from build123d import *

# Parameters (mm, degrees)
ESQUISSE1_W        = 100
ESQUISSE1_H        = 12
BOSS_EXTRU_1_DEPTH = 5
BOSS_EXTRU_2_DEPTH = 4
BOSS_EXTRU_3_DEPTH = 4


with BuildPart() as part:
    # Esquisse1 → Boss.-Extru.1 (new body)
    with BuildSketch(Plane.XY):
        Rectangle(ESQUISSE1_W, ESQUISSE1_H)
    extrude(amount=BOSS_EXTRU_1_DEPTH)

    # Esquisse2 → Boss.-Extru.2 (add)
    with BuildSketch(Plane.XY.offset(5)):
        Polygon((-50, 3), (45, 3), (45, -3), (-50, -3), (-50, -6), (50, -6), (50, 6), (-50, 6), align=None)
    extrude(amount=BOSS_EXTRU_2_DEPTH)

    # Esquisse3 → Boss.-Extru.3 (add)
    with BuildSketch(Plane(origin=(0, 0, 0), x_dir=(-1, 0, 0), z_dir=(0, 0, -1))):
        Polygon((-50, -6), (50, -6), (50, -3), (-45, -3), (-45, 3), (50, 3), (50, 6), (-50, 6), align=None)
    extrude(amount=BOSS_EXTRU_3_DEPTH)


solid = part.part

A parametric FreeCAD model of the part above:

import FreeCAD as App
import Part
import Sketcher

V = App.Vector


def add_polygon(sketch, points):
    """Adds a closed chain of lines whose ends are joined by coincident constraints."""
    first, n = sketch.GeometryCount, len(points)
    for a, b in zip(points, points[1:] + points[:1]):
        sketch.addGeometry(Part.LineSegment(App.Vector(*a, 0), App.Vector(*b, 0)), False)
    for i in range(n):
        sketch.addConstraint(Sketcher.Constraint("Coincident", first + i, 2, first + (i + 1) % n, 1))

doc = App.newDocument("Part")
body = doc.addObject("PartDesign::Body", "Body")

# Sketch on XY plane
sketch1 = body.newObject("Sketcher::SketchObject", "Sketch")
sketch1.AttachmentSupport = (doc.getObject("XY_Plane"), [""])
sketch1.MapMode = "FlatFace"
add_polygon(sketch1, [(-50, 6), (-50, -6), (50, -6), (50, 6)])  # lines 0-3
sketch1.addConstraint(Sketcher.Constraint("Vertical", 0))
sketch1.addConstraint(Sketcher.Constraint("Horizontal", 1))
sketch1.addConstraint(Sketcher.Constraint("Vertical", 2))
sketch1.addConstraint(Sketcher.Constraint("Horizontal", 3))
sketch1.addConstraint(Sketcher.Constraint("Symmetric", 0, 2, 2, 2, -1, 1))
sketch1.addConstraint(Sketcher.Constraint("DistanceX", 1, 1, 1, 2, 100.0))
sketch1.addConstraint(Sketcher.Constraint("DistanceY", 0, 2, 0, 1, 12.0))
pad1 = body.newObject("PartDesign::Pad", "Pad")
pad1.Profile = sketch1
pad1.Length = 5

# Sketch on XY plane
sketch2 = body.newObject("Sketcher::SketchObject", "Sketch001")
sketch2.AttachmentSupport = (doc.getObject("XY_Plane"), [""])
sketch2.MapMode = "FlatFace"
sketch2.AttachmentOffset = App.Placement(V(0, 0, 5), App.Rotation())
add_polygon(sketch2, [(-50, 3), (45, 3), (45, -3), (-50, -3), (-50, -6), (50, -6), (50, 6), (-50, 6)])  # lines 0-7
sketch2.addConstraint(Sketcher.Constraint("Horizontal", 0))
sketch2.addConstraint(Sketcher.Constraint("Vertical", 1))
sketch2.addConstraint(Sketcher.Constraint("Horizontal", 2))
sketch2.addConstraint(Sketcher.Constraint("Vertical", 3))
sketch2.addConstraint(Sketcher.Constraint("Horizontal", 4))
sketch2.addConstraint(Sketcher.Constraint("Vertical", 5))
sketch2.addConstraint(Sketcher.Constraint("Horizontal", 6))
sketch2.addConstraint(Sketcher.Constraint("Vertical", 7))
sketch2.addConstraint(Sketcher.Constraint("Symmetric", 3, 2, 5, 2, -1, 1))
sketch2.addConstraint(Sketcher.Constraint("Symmetric", 2, 2, 7, 2, -1))
sketch2.addConstraint(Sketcher.Constraint("DistanceX", 0, 1, 0, 2, 95.0))
sketch2.addConstraint(Sketcher.Constraint("DistanceX", 4, 1, 4, 2, 100.0))
sketch2.addConstraint(Sketcher.Constraint("DistanceY", 1, 2, 1, 1, 6.0))
sketch2.addConstraint(Sketcher.Constraint("DistanceY", 3, 2, 3, 1, 3.0))
pad2 = body.newObject("PartDesign::Pad", "Pad001")
pad2.Profile = sketch2
pad2.Length = 4

# Sketch on XY plane
sketch3 = body.newObject("Sketcher::SketchObject", "Sketch002")
sketch3.AttachmentSupport = (doc.getObject("XY_Plane"), [""])
sketch3.MapMode = "FlatFace"
add_polygon(sketch3, [(50, -6), (-50, -6), (-50, -3), (45, -3), (45, 3), (-50, 3), (-50, 6), (50, 6)])  # lines 0-7
sketch3.addConstraint(Sketcher.Constraint("Horizontal", 0))
sketch3.addConstraint(Sketcher.Constraint("Vertical", 1))
sketch3.addConstraint(Sketcher.Constraint("Horizontal", 2))
sketch3.addConstraint(Sketcher.Constraint("Vertical", 3))
sketch3.addConstraint(Sketcher.Constraint("Horizontal", 4))
sketch3.addConstraint(Sketcher.Constraint("Vertical", 5))
sketch3.addConstraint(Sketcher.Constraint("Horizontal", 6))
sketch3.addConstraint(Sketcher.Constraint("Vertical", 7))
sketch3.addConstraint(Sketcher.Constraint("Symmetric", 0, 2, 6, 2, -1, 1))
sketch3.addConstraint(Sketcher.Constraint("Symmetric", 1, 2, 4, 2, -1))
sketch3.addConstraint(Sketcher.Constraint("DistanceX", 0, 2, 0, 1, 100.0))
sketch3.addConstraint(Sketcher.Constraint("DistanceX", 2, 1, 2, 2, 95.0))
sketch3.addConstraint(Sketcher.Constraint("DistanceY", 1, 1, 1, 2, 3.0))
sketch3.addConstraint(Sketcher.Constraint("DistanceY", 3, 1, 3, 2, 6.0))
pad3 = body.newObject("PartDesign::Pad", "Pad002")
pad3.Profile = sketch3
pad3.Length = 4
pad3.Reversed = True

doc.recompute()
